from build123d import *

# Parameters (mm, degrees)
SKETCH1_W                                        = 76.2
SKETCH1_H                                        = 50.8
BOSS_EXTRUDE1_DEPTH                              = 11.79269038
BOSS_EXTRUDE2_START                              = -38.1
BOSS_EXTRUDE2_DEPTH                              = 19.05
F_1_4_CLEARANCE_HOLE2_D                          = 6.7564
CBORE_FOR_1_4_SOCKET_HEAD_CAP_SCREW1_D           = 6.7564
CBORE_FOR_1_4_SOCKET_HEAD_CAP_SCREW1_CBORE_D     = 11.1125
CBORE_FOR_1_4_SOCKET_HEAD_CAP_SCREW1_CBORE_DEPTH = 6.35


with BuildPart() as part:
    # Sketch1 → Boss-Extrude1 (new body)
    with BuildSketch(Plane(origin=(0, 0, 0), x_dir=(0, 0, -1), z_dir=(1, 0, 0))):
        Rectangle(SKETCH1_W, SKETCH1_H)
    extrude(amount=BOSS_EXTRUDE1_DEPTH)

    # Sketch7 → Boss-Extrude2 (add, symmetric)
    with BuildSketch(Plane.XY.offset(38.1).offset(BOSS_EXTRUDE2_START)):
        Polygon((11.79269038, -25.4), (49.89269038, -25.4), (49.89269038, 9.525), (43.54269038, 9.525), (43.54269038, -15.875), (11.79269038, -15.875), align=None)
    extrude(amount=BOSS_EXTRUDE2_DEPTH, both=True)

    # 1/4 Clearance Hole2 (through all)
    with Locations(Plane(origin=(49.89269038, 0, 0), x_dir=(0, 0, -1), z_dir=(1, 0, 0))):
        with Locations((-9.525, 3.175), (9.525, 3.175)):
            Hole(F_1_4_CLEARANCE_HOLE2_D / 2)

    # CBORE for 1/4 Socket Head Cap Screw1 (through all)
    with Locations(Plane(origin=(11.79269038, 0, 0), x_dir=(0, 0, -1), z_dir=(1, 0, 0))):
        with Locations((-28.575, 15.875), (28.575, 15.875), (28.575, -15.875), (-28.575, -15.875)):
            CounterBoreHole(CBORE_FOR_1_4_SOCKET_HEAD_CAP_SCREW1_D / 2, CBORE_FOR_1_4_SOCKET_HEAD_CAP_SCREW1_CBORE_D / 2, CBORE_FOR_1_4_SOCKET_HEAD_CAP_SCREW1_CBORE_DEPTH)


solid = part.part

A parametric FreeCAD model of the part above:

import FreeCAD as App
import Part
import Sketcher

V = App.Vector
Q = App.Units.Quantity

doc = App.newDocument("Part")
body = doc.addObject("PartDesign::Body", "Body")

# Sketch on YZ plane
sketch1 = doc.addObject("Sketcher::SketchObject", "Sketch")
body.addObject(sketch1)
sketch1.AttachmentSupport = (doc.YZ_Plane, [""])
sketch1.MapMode = "FlatFace"
sketch1.addGeometry([
    Part.LineSegment(V(25.4, 38.1, 0), V(-25.4, 38.1, 0)),
    Part.LineSegment(V(-25.4, 38.1, 0), V(-25.4, -38.1, 0)),
    Part.LineSegment(V(-25.4, -38.1, 0), V(25.4, -38.1, 0)),
    Part.LineSegment(V(25.4, -38.1, 0), V(25.4, 38.1, 0)),
], False)
sketch1.addConstraint([
    Sketcher.Constraint("Coincident", 0, 2, 1, 1),
    Sketcher.Constraint("Coincident", 1, 2, 2, 1),
    Sketcher.Constraint("Coincident", 2, 2, 3, 1),
    Sketcher.Constraint("Coincident", 3, 2, 0, 1),
    Sketcher.Constraint("Horizontal", 0),
    Sketcher.Constraint("Vertical", 1),
    Sketcher.Constraint("Horizontal", 2),
    Sketcher.Constraint("Vertical", 3),
    Sketcher.Constraint("Symmetric", 0, 2, 2, 2, -1, 1),
    Sketcher.Constraint("DistanceX", 0, 2, 0, 1, Q("2 in")),
    Sketcher.Constraint("DistanceY", 1, 2, 1, 1, Q("3 in")),
])
pad1 = doc.addObject("PartDesign::Pad", "Pad")
body.addObject(pad1)
pad1.Profile = sketch1
pad1.Length = 11.79269

# Sketch on XY plane
sketch2 = doc.addObject("Sketcher::SketchObject", "Sketch001")
body.addObject(sketch2)
sketch2.AttachmentSupport = (doc.XY_Plane, [""])
sketch2.MapMode = "FlatFace"
sketch2.addGeometry([
    Part.LineSegment(V(11.79269, -25.4, 0), V(49.89269, -25.4, 0)),  # 0
    Part.LineSegment(V(49.89269, -25.4, 0), V(49.89269, 9.525, 0)),  # 1
    Part.LineSegment(V(49.89269, 9.525, 0), V(43.54269, 9.525, 0)),  # 2
    Part.LineSegment(V(43.54269, 9.525, 0), V(43.54269, -15.875, 0)),  # 3
    Part.LineSegment(V(43.54269, -15.875, 0), V(11.79269, -15.875, 0)),  # 4
    Part.LineSegment(V(11.79269, -15.875, 0), V(11.79269, -25.4, 0)),  # 5
], False)
sketch2.addConstraint([
    Sketcher.Constraint("Coincident", 0, 2, 1, 1),
    Sketcher.Constraint("Coincident", 1, 2, 2, 1),
    Sketcher.Constraint("Coincident", 2, 2, 3, 1),
    Sketcher.Constraint("Coincident", 3, 2, 4, 1),
    Sketcher.Constraint("Coincident", 4, 2, 5, 1),
    Sketcher.Constraint("Coincident", 5, 2, 0, 1),
    Sketcher.Constraint("Horizontal", 0),
    Sketcher.Constraint("Vertical", 1),
    Sketcher.Constraint("Horizontal", 2),
    Sketcher.Constraint("Vertical", 3),
    Sketcher.Constraint("Horizontal", 4),
    Sketcher.Constraint("Vertical", 5),
    Sketcher.Constraint("DistanceY", 3, 2, 3, 1, Q("1 in")),
    Sketcher.Constraint("DistanceX", 0, 1, 0, 2, Q("1.5 in")),
    Sketcher.Constraint("DistanceY", 0, 2, -1, 1, Q("1 in")),
    Sketcher.Constraint("DistanceX", 2, 2, 2, 1, Q("0.25 in")),
    Sketcher.Constraint("DistanceY", 1, 1, 1, 2, Q("1.375 in")),
    Sketcher.Constraint("DistanceX", -1, 1, 0, 2, Q("49.89269 mm")),
])
pad2 = doc.addObject("PartDesign::Pad", "Pad001")
body.addObject(pad2)
pad2.Profile = sketch2
pad2.Length = Q("1.5 in")
pad2.Midplane = True

# Sketch on YZ plane
sketch3 = doc.addObject("Sketcher::SketchObject", "Sketch002")
body.addObject(sketch3)
sketch3.AttachmentSupport = (doc.YZ_Plane, [""])
sketch3.MapMode = "FlatFace"
sketch3.AttachmentOffset = App.Placement(V(0, 0, 49.89269), App.Rotation())
sketch3.addGeometry([
    Part.Circle(V(3.175, 9.525, 0), V(0, 0, 1), 3.3782),
    Part.Circle(V(3.175, -9.525, 0), V(0, 0, 1), 3.3782),
], False)
sketch3.addConstraint([
    Sketcher.Constraint("Equal", 0, 1),
    Sketcher.Constraint("Symmetric", 0, 3, 1, 3, -1),
    Sketcher.Constraint("Diameter", 0, Q("0.266 in")),
    Sketcher.Constraint("DistanceY", 1, 3, 0, 3, Q("0.75 in")),
    Sketcher.Constraint("DistanceX", -1, 1, 0, 3, Q("0.125 in")),
])
doc.recompute()
hole = doc.addObject("PartDesign::Hole", "Hole")
body.addObject(hole)
hole.Profile = sketch3
hole.ThreadType = "None"
hole.Diameter = Q("0.266 in")
hole.DepthType = "ThroughAll"

# Sketch on YZ plane
sketch4 = doc.addObject("Sketcher::SketchObject", "Sketch003")
body.addObject(sketch4)
sketch4.AttachmentSupport = (doc.YZ_Plane, [""])
sketch4.MapMode = "FlatFace"
sketch4.AttachmentOffset = App.Placement(V(0, 0, 11.79269), App.Rotation())
sketch4.addGeometry([
    Part.Circle(V(15.875, 28.575, 0), V(0, 0, 1), 3.3782),
    Part.Circle(V(15.875, -28.575, 0), V(0, 0, 1), 3.3782),
    Part.Circle(V(-15.875, -28.575, 0), V(0, 0, 1), 3.3782),
    Part.Circle(V(-15.875, 28.575, 0), V(0, 0, 1), 3.3782),
], False)
sketch4.addConstraint([
    Sketcher.Constraint("Equal", 0, 1),
    Sketcher.Constraint("Equal", 1, 2),
    Sketcher.Constraint("Equal", 2, 3),
    Sketcher.Constraint("Symmetric", 0, 3, 2, 3, -1, 1),
    Sketcher.Constraint("Symmetric", 1, 3, 3, 3, -1, 1),
    Sketcher.Constraint("Symmetric", 1, 3, 2, 3, -2),
    Sketcher.Constraint("Diameter", 0, Q("0.266 in")),
    Sketcher.Constraint("DistanceY", 1, 3, 0, 3, Q("2.25 in")),
    Sketcher.Constraint("DistanceX", 2, 3, 1, 3, Q("1.25 in")),
])
doc.recompute()
hole2 = doc.addObject("PartDesign::Hole", "Hole001")
body.addObject(hole2)
hole2.Profile = sketch4
hole2.ThreadType = "None"
hole2.Diameter = Q("0.266 in")
hole2.DepthType = "ThroughAll"
hole2.HoleCutType = "Counterbore"
hole2.HoleCutDiameter = Q("0.4375 in")
hole2.HoleCutDepth = Q("0.25 in")

doc.recompute()
